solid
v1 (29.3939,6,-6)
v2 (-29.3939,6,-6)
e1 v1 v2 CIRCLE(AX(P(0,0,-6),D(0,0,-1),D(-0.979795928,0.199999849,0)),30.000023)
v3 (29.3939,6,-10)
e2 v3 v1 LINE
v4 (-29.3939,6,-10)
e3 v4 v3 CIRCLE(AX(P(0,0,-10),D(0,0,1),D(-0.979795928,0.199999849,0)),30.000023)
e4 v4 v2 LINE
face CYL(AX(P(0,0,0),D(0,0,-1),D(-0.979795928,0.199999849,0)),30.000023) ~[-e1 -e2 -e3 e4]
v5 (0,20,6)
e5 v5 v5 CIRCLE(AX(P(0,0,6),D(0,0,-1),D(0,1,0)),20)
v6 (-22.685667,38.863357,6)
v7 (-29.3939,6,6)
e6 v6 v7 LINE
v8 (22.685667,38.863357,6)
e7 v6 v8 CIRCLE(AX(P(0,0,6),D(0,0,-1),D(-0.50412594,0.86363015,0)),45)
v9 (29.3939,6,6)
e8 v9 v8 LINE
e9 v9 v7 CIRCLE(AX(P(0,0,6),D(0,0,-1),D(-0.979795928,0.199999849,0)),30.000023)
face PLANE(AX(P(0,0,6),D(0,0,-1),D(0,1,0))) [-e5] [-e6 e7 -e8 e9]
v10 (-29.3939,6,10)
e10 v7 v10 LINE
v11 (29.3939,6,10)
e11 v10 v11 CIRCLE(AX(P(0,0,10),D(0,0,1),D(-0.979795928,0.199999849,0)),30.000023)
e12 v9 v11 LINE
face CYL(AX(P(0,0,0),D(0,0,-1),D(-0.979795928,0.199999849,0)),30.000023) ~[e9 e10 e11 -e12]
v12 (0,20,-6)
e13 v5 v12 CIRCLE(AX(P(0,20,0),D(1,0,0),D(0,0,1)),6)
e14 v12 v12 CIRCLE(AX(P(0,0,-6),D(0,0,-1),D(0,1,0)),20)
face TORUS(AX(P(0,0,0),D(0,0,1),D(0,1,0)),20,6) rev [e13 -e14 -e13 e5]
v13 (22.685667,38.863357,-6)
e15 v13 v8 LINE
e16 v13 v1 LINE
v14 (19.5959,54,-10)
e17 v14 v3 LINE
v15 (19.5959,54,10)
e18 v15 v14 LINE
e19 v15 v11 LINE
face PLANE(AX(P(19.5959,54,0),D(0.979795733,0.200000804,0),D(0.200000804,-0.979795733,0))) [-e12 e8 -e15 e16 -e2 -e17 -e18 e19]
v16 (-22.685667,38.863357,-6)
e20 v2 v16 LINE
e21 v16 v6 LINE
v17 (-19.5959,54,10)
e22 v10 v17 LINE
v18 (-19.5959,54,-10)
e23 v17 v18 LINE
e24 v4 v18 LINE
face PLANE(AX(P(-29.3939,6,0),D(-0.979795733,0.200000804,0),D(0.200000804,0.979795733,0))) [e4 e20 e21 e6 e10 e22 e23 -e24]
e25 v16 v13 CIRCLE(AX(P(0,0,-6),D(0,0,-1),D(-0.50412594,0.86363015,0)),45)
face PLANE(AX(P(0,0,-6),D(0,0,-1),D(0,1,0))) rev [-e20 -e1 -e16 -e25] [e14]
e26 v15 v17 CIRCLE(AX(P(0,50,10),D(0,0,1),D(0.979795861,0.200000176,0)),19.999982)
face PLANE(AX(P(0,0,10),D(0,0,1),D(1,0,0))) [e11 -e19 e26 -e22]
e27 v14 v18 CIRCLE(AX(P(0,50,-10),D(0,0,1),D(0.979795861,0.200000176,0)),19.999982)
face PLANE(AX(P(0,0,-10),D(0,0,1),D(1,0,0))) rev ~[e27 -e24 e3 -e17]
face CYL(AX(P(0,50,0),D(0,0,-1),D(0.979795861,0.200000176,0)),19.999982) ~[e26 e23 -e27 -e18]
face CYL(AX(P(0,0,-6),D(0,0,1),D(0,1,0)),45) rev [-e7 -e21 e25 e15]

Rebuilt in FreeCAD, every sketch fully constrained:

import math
import FreeCAD as App
import Part
import Sketcher

V = App.Vector

doc = App.newDocument("Part")
params = doc.addObject("Spreadsheet::Sheet", "Params")
for row, (alias, value) in enumerate([
    ("sketch1_radius", "30 mm"),
    ("sketch1_radius2", "20 mm"),
    ("pad1_length", "20 mm"),
    ("sketch2_radius", "6 mm"),
    ("sketch2_width", "25 mm"),
    ("groove_angle", "360 deg"),
], start=1):
    params.set(f"A{row}", alias)
    params.set(f"B{row}", "=" + value)
    params.setAlias(f"B{row}", alias)

body = doc.addObject("PartDesign::Body", "Body")

sketch1 = body.newObject("Sketcher::SketchObject", "Sketch")
sketch1.AttachmentSupport = (doc.getObject("XY_Plane"), [""])
sketch1.MapMode = "FlatFace"
sketch1.addGeometry([
    Part.LineSegment(V(-20, 54, 0), V(-29, 6, 0)),
    Part.ArcOfCircle(Part.Circle(V(0, 0, 0), V(0, 0, 1), 30), math.radians(168), math.radians(372)),
    Part.LineSegment(V(29, 6, 0), V(20, 54, 0)),
    Part.ArcOfCircle(Part.Circle(V(0, 50, 0), V(0, 0, 1), 20), math.radians(12), math.radians(168)),
], False)
sketch1.addConstraint([
    Sketcher.Constraint("Tangent", 0, 2, 1, 1),
    Sketcher.Constraint("Tangent", 1, 2, 2, 1),
    Sketcher.Constraint("Tangent", 2, 2, 3, 1),
    Sketcher.Constraint("Tangent", 3, 2, 0, 1),
    Sketcher.Constraint("Coincident", 1, 3, -1, 1),
    Sketcher.Constraint("PointOnObject", 3, 3, -2),
    Sketcher.Constraint("Radius", 1, 30.0),
    Sketcher.Constraint("Radius", 3, 20.0),
    Sketcher.Constraint("DistanceY", -1, 1, 3, 3, 50.0),
])
sketch1.setExpression("Constraints[6]", "Params.sketch1_radius")
sketch1.setExpression("Constraints[7]", "Params.sketch1_radius2")
pad1 = body.newObject("PartDesign::Pad", "Pad")
pad1.Profile = sketch1
pad1.setExpression("Length", "Params.pad1_length")
pad1.Midplane = True

sketch2 = body.newObject("Sketcher::SketchObject", "Sketch001")
sketch2.AttachmentSupport = (doc.getObject("YZ_Plane"), [""])
sketch2.MapMode = "FlatFace"
sketch2.addGeometry([
    Part.LineSegment(V(45, -6, 0), V(45, 6, 0)),
    Part.LineSegment(V(45, 6, 0), V(20, 6, 0)),
    Part.ArcOfCircle(Part.Circle(V(20, 0, 0), V(0, 0, 1), 6), math.radians(90), math.radians(270)),
    Part.LineSegment(V(20, -6, 0), V(45, -6, 0)),
], False)
sketch2.addConstraint([
    Sketcher.Constraint("Coincident", 0, 2, 1, 1),
    Sketcher.Constraint("Tangent", 1, 2, 2, 1),
    Sketcher.Constraint("Tangent", 2, 2, 3, 1),
    Sketcher.Constraint("Coincident", 3, 2, 0, 1),
    Sketcher.Constraint("Vertical", 0),
    Sketcher.Constraint("Horizontal", 1),
    Sketcher.Constraint("Horizontal", 3),
    Sketcher.Constraint("PointOnObject", 2, 3, -1),
    Sketcher.Constraint("Radius", 2, 6.0),
    Sketcher.Constraint("DistanceX", 1, 2, 1, 1, 25.0),
    Sketcher.Constraint("DistanceX", -1, 1, 2, 3, 20.0),
])
sketch2.setExpression("Constraints[8]", "Params.sketch2_radius")
sketch2.setExpression("Constraints[9]", "Params.sketch2_width")
groove = body.newObject("PartDesign::Groove", "Groove")
groove.Profile = sketch2
groove.ReferenceAxis = (sketch2, ["V_Axis"])
groove.setExpression("Angle", "Params.groove_angle")

doc.recompute()
